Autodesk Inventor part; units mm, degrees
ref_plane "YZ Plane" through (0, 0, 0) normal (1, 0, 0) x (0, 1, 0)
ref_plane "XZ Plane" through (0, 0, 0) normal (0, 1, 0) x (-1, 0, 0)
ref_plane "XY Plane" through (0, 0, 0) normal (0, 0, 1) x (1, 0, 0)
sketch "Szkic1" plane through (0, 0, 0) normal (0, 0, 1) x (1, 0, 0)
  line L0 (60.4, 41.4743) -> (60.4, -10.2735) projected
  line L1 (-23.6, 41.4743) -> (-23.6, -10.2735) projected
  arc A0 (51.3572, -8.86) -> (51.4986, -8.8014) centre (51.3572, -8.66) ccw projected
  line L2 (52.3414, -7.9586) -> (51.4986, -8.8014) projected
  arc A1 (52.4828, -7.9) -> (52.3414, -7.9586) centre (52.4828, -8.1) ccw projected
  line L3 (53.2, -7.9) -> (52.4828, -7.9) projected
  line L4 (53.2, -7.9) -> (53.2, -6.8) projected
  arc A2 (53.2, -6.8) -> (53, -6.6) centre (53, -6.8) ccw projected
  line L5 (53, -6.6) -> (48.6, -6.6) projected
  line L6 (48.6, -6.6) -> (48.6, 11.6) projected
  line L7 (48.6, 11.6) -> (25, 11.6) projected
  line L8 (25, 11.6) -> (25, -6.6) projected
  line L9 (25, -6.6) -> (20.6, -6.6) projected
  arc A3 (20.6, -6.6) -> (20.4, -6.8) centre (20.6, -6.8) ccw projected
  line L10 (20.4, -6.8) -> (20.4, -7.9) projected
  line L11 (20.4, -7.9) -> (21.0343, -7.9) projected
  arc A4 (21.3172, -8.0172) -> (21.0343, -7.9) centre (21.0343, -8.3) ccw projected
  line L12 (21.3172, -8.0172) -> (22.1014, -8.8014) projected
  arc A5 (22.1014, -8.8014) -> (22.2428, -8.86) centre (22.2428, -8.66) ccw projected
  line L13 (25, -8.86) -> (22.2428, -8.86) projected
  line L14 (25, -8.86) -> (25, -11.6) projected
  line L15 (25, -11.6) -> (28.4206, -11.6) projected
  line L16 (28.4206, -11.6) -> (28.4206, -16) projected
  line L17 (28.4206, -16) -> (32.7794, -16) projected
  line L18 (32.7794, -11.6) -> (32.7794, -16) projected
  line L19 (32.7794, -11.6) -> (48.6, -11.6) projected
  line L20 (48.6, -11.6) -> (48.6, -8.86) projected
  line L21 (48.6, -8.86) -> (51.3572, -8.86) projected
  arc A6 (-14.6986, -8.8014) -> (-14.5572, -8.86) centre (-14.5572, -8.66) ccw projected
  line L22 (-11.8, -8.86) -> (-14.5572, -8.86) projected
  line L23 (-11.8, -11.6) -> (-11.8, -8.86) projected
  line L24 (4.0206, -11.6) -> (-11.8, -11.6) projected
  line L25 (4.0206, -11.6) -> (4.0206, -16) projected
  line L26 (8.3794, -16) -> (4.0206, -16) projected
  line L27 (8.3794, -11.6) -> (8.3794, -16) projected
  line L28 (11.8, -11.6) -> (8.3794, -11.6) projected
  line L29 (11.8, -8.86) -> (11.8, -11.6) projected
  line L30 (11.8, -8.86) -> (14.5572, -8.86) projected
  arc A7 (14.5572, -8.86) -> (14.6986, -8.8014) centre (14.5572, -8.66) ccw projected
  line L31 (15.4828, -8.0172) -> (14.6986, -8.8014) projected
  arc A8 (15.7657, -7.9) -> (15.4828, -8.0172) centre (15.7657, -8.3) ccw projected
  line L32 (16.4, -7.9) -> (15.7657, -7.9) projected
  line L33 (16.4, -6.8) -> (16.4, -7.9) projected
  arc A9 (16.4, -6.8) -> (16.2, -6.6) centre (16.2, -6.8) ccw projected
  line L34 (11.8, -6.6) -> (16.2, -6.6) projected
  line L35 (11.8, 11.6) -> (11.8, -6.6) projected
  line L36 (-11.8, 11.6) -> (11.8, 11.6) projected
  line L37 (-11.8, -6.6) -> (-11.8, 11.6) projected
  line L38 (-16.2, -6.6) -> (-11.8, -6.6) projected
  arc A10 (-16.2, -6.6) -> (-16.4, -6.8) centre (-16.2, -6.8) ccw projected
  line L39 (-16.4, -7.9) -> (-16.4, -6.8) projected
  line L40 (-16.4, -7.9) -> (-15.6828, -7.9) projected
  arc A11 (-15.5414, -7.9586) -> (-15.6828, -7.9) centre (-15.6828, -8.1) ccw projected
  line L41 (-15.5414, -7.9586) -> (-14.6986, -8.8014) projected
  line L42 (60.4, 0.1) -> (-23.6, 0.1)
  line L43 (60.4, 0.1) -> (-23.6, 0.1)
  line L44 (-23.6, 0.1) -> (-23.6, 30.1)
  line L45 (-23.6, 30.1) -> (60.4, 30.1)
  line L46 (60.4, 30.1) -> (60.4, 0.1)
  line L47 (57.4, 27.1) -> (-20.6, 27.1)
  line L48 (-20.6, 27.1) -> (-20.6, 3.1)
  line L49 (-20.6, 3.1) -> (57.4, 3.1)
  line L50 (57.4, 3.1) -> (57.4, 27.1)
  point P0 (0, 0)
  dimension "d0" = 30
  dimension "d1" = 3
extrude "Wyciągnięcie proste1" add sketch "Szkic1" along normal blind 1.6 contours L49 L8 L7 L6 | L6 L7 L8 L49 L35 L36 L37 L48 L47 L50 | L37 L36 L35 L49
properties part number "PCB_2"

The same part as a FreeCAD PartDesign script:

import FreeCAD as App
import Part
import Sketcher


def add_polygon(sketch, points):
    """Adds a closed chain of lines whose ends are joined by coincident constraints."""
    first, n = sketch.GeometryCount, len(points)
    for a, b in zip(points, points[1:] + points[:1]):
        sketch.addGeometry(Part.LineSegment(App.Vector(*a, 0), App.Vector(*b, 0)), False)
    for i in range(n):
        sketch.addConstraint(Sketcher.Constraint("Coincident", first + i, 2, first + (i + 1) % n, 1))

doc = App.newDocument("Part")
body = doc.addObject("PartDesign::Body", "Body")

# Sketch on XY plane
sketch1 = body.newObject("Sketcher::SketchObject", "Sketch")
sketch1.AttachmentSupport = (doc.getObject("XY_Plane"), [""])
sketch1.MapMode = "FlatFace"
add_polygon(sketch1, [(57, 3), (57, 27), (-21, 27), (-21, 3)])  # lines 0-3
sketch1.addConstraint([
    Sketcher.Constraint("Vertical", 0),
    Sketcher.Constraint("Horizontal", 1),
    Sketcher.Constraint("Vertical", 2),
    Sketcher.Constraint("Horizontal", 3),
    Sketcher.Constraint("DistanceX", 1, 2, 1, 1, 78.0),
    Sketcher.Constraint("DistanceY", 0, 1, 0, 2, 24.0),
    Sketcher.Constraint("DistanceX", -1, 1, 0, 2, 57.4),
    Sketcher.Constraint("DistanceY", -1, 1, 0, 2, 27.1),
])
pad1 = body.newObject("PartDesign::Pad", "Pad")
pad1.Profile = sketch1
pad1.Length = 1.6

doc.recompute()
